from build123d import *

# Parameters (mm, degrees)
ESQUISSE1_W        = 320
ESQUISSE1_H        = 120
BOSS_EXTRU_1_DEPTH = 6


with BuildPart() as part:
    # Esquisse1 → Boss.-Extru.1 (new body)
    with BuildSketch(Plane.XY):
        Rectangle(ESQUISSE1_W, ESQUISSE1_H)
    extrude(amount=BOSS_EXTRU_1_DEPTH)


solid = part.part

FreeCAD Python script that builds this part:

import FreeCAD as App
import Part
import Sketcher

doc = App.newDocument("Part")
body = doc.addObject("PartDesign::Body", "Body")

sketch1 = body.newObject("Sketcher::SketchObject", "Sketch")
sketch1.AttachmentSupport = (doc.getObject("XY_Plane"), [""])
sketch1.MapMode = "FlatFace"
sketch1.addGeometry(Part.LineSegment(App.Vector(-160, 60, 0), App.Vector(-160, -60, 0)), False)
sketch1.addGeometry(Part.LineSegment(App.Vector(-160, -60, 0), App.Vector(160, -60, 0)), False)
sketch1.addGeometry(Part.LineSegment(App.Vector(160, -60, 0), App.Vector(160, 60, 0)), False)
sketch1.addGeometry(Part.LineSegment(App.Vector(160, 60, 0), App.Vector(-160, 60, 0)), False)
sketch1.addConstraint(Sketcher.Constraint("Coincident", 0, 2, 1, 1))
sketch1.addConstraint(Sketcher.Constraint("Coincident", 1, 2, 2, 1))
sketch1.addConstraint(Sketcher.Constraint("Coincident", 2, 2, 3, 1))
sketch1.addConstraint(Sketcher.Constraint("Coincident", 3, 2, 0, 1))
sketch1.addConstraint(Sketcher.Constraint("Vertical", 0))
sketch1.addConstraint(Sketcher.Constraint("Horizontal", 1))
sketch1.addConstraint(Sketcher.Constraint("Vertical", 2))
sketch1.addConstraint(Sketcher.Constraint("Horizontal", 3))
sketch1.addConstraint(Sketcher.Constraint("Symmetric", 0, 2, 2, 2, -1, 1))
sketch1.addConstraint(Sketcher.Constraint("DistanceX", 1, 1, 1, 2, 320.0))
sketch1.addConstraint(Sketcher.Constraint("DistanceY", 0, 2, 0, 1, 120.0))
pad1 = body.newObject("PartDesign::Pad", "Pad")
pad1.Profile = sketch1
pad1.Length = 6

doc.recompute()
